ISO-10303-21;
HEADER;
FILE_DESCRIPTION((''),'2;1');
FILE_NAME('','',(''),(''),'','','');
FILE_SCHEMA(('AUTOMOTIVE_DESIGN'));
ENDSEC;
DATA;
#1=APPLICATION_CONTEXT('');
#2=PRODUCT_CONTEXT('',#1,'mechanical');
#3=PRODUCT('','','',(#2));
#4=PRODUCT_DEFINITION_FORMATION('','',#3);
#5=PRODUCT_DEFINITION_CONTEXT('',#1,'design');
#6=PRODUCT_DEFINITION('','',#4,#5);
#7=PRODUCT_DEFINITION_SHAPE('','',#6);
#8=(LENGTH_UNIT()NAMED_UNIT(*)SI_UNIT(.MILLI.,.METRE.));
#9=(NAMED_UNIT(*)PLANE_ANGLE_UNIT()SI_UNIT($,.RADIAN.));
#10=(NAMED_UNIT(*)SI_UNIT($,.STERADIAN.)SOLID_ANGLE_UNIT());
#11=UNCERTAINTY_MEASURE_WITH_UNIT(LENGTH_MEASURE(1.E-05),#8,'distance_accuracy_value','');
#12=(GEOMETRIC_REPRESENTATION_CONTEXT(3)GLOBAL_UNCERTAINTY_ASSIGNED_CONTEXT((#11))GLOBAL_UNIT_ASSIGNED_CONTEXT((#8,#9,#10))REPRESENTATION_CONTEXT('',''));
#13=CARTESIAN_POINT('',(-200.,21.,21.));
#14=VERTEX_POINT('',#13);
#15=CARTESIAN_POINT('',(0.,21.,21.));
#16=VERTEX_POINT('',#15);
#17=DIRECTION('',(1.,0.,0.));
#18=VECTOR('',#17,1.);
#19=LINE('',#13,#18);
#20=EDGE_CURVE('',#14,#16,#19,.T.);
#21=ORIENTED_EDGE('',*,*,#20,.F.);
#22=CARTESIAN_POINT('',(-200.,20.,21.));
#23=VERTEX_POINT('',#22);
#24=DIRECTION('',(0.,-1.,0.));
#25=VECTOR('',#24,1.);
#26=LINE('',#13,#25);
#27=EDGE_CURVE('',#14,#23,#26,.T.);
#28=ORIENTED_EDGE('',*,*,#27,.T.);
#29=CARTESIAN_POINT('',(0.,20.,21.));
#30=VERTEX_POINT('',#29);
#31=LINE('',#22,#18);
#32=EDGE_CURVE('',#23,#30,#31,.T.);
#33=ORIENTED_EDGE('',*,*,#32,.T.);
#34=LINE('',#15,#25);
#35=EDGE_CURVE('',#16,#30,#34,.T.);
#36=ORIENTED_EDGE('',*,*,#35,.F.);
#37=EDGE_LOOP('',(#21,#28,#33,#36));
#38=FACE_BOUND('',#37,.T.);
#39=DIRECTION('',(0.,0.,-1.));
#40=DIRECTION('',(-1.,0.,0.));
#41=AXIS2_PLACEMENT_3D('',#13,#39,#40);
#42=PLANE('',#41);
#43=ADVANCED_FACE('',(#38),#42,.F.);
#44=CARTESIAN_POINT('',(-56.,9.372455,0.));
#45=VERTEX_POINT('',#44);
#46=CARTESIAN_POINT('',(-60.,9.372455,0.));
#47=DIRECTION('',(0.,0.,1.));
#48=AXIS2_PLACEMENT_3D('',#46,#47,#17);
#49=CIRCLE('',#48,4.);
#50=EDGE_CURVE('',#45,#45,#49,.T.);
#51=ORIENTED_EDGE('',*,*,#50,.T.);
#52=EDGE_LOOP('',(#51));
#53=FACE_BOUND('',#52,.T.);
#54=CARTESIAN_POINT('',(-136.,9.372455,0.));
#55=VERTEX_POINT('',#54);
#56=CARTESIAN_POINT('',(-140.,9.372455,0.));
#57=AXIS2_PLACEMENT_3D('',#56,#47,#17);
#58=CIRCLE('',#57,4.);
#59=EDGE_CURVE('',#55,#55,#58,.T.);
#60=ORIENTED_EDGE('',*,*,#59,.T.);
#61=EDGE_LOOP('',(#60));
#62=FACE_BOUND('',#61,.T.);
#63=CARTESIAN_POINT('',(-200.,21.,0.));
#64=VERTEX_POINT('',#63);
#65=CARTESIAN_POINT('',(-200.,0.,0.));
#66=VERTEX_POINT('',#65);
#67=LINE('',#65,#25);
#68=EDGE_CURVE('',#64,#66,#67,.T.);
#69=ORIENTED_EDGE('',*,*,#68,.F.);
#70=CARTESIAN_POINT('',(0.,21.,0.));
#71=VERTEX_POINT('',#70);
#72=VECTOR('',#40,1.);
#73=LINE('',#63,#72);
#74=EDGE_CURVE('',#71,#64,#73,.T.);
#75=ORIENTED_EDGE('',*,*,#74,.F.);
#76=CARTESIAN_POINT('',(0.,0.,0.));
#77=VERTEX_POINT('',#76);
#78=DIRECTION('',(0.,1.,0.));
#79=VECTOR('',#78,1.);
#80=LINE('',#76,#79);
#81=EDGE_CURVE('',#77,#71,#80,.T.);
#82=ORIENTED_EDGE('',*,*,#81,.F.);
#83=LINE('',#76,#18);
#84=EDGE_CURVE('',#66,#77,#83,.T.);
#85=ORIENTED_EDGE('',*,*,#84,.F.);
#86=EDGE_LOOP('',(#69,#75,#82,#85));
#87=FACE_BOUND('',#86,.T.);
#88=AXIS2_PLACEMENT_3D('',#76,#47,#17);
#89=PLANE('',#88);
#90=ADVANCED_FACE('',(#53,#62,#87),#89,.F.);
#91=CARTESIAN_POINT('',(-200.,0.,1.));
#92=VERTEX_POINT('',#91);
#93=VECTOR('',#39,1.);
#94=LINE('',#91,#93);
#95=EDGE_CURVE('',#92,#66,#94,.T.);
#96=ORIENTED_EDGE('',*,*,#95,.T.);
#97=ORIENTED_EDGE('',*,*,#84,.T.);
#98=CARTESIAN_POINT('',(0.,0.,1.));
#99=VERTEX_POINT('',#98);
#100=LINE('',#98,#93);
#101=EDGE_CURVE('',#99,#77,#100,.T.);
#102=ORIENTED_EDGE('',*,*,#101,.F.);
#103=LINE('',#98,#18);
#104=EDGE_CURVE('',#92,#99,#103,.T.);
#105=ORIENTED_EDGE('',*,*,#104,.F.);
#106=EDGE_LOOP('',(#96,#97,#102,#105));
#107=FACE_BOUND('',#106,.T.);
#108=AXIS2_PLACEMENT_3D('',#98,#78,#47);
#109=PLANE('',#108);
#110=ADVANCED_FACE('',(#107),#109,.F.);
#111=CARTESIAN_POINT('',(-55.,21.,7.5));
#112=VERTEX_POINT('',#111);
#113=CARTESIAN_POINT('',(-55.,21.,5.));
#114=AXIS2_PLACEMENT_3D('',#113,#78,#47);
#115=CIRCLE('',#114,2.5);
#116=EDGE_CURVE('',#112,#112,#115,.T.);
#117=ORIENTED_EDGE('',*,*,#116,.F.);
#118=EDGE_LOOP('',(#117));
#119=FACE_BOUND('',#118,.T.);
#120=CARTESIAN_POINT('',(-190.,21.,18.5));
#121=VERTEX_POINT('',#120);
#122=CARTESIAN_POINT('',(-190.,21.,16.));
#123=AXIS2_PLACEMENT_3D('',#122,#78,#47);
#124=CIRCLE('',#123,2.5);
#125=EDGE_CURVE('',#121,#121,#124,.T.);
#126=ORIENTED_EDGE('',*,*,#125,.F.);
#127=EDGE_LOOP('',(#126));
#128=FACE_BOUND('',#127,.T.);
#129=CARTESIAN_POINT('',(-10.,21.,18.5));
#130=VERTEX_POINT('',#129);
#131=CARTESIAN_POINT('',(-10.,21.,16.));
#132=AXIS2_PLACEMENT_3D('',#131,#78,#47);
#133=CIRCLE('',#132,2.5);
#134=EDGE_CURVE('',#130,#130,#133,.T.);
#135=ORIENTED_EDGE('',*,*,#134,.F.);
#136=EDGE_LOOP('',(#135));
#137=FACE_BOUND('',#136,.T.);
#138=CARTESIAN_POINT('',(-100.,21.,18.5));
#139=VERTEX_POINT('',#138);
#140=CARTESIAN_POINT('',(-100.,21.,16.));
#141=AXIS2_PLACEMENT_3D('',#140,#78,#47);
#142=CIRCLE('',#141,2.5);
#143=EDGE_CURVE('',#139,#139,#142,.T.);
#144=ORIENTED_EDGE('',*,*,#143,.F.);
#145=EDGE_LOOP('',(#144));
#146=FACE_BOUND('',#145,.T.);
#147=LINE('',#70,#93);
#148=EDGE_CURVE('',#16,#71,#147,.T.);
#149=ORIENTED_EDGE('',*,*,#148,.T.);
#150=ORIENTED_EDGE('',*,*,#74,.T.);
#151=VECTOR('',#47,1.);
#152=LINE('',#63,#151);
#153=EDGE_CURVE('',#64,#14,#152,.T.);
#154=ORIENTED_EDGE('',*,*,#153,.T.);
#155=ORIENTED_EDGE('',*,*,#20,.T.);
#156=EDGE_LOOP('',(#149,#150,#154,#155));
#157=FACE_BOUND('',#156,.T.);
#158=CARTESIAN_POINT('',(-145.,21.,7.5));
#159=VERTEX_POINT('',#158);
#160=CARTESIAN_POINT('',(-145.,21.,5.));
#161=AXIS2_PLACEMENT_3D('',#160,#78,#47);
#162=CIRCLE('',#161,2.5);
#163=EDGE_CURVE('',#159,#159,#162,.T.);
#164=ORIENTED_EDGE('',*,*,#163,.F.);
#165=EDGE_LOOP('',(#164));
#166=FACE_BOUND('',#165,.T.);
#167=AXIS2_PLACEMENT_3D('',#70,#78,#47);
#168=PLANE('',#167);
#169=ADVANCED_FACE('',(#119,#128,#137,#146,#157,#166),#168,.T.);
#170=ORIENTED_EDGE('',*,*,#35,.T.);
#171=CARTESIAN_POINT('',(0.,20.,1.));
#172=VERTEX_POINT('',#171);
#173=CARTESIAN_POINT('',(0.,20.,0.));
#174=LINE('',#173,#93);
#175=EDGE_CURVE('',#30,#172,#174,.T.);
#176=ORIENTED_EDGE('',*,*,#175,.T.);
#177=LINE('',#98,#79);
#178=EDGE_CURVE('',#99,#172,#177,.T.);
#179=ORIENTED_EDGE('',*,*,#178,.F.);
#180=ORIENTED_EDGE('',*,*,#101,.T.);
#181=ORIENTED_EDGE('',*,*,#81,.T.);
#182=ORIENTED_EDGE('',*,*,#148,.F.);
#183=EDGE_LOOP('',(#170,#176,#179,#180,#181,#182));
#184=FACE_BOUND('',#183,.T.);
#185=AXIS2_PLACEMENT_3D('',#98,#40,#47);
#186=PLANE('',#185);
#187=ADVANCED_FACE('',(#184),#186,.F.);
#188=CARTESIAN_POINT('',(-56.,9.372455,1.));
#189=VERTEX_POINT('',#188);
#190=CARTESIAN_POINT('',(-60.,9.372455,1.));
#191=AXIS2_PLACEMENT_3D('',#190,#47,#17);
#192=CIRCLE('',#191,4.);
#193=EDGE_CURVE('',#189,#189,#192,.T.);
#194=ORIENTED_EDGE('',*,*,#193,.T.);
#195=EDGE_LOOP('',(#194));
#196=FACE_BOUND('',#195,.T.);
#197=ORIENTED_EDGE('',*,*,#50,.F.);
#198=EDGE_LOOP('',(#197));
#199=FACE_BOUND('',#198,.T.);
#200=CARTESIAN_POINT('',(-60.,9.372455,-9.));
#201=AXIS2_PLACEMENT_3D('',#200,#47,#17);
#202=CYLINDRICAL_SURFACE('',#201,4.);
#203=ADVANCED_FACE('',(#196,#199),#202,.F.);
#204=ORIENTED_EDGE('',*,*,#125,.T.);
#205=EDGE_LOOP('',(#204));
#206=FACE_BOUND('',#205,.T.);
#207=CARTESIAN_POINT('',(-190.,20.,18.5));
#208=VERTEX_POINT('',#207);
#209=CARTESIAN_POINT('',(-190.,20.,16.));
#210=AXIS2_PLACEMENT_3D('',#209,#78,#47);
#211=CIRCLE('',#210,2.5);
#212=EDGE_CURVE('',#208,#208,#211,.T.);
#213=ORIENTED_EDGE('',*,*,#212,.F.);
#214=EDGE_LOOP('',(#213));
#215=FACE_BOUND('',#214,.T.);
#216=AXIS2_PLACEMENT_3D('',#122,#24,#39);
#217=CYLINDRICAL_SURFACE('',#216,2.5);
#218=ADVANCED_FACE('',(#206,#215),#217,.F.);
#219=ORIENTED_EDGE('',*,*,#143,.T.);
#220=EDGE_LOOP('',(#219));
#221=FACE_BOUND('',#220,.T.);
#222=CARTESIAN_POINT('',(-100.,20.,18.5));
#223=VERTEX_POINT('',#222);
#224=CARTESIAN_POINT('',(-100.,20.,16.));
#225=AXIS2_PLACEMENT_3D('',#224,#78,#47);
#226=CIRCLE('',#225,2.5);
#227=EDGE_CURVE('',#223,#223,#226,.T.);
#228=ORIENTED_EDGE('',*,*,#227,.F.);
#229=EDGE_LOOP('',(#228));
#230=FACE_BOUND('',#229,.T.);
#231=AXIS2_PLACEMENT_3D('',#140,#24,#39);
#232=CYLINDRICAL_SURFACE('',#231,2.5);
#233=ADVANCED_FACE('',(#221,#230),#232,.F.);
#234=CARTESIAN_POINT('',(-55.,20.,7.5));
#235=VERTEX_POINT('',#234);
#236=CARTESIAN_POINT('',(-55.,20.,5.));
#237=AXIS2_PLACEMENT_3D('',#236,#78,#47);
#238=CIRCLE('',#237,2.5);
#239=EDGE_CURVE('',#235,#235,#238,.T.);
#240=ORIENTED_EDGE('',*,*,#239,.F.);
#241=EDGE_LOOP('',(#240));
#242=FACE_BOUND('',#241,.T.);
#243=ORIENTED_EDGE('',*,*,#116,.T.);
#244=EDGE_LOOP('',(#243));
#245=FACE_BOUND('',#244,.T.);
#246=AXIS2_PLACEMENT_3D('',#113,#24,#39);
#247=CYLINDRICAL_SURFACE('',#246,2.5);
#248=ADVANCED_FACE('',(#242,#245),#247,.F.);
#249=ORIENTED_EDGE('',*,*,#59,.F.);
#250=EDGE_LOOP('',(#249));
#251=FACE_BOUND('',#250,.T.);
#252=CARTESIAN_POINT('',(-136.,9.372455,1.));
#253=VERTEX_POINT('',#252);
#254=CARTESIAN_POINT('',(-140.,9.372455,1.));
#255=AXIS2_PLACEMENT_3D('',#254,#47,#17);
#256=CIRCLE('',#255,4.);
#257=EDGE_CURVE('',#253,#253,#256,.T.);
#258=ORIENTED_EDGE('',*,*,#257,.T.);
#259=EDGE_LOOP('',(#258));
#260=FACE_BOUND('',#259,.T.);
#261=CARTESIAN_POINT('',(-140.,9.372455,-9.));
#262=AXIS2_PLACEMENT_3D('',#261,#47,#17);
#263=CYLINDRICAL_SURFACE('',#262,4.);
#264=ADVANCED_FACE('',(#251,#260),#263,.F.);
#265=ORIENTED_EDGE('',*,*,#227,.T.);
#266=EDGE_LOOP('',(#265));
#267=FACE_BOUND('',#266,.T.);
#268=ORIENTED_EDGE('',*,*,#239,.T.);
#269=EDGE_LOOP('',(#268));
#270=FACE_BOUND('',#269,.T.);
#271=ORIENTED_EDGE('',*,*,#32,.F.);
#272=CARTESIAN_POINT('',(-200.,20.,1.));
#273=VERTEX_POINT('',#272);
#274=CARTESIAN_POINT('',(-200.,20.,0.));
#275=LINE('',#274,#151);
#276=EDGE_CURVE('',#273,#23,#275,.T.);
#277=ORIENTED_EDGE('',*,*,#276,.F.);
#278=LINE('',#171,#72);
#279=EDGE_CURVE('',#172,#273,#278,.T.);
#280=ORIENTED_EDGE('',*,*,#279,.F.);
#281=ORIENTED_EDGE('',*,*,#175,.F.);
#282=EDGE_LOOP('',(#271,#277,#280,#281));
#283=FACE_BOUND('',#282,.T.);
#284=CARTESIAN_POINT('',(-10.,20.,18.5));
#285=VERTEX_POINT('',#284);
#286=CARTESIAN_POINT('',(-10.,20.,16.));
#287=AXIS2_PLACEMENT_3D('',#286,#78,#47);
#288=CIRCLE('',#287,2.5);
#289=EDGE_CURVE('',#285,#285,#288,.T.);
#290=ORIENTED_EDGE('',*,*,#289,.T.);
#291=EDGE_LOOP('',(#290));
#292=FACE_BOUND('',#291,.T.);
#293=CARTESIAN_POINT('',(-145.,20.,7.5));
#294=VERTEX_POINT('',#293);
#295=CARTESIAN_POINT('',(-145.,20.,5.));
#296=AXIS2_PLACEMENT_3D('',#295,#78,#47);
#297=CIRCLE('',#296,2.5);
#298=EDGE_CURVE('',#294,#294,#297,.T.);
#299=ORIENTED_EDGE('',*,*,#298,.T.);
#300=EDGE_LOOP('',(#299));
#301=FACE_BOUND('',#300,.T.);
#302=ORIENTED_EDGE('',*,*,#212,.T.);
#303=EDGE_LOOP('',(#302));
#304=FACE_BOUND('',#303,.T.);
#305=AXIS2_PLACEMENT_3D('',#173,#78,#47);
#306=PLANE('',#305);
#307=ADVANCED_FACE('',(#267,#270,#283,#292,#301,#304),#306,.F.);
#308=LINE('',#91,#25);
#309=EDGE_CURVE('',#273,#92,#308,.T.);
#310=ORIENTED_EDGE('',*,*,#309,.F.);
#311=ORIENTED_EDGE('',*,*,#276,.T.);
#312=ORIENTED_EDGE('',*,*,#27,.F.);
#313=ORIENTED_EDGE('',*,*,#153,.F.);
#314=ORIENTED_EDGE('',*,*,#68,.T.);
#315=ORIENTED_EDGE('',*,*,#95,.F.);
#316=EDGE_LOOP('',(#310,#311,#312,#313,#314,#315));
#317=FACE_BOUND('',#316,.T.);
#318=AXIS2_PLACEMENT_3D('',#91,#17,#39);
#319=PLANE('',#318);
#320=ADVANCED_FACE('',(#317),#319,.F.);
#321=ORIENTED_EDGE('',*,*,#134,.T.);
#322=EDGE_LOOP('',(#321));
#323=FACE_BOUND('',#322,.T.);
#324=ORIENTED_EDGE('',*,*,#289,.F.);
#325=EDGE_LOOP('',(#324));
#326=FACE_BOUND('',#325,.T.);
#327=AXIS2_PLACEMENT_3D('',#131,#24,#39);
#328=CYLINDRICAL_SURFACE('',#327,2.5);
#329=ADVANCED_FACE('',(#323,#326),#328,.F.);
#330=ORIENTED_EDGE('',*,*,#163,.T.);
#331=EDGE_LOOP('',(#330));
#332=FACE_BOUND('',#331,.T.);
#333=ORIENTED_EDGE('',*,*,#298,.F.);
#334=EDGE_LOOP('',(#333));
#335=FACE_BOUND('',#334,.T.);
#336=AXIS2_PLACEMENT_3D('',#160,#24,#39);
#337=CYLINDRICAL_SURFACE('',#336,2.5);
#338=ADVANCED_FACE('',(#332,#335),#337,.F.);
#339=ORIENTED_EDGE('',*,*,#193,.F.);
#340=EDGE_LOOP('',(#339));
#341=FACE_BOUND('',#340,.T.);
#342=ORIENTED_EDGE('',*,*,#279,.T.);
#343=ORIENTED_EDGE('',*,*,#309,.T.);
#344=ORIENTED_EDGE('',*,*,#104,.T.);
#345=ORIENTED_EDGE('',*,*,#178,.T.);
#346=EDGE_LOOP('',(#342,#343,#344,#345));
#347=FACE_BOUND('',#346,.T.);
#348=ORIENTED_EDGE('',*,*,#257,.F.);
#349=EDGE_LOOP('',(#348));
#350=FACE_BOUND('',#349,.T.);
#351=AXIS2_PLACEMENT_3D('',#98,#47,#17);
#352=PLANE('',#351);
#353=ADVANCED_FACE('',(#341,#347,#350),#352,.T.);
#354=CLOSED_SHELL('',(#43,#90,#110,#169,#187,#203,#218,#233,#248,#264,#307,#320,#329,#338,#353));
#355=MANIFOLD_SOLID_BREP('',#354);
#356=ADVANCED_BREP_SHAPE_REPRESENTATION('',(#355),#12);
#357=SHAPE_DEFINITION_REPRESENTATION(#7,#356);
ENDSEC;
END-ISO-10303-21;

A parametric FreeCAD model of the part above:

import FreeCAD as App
import Part
import Sketcher


def add_polygon(sketch, points):
    """Adds a closed chain of lines whose ends are joined by coincident constraints."""
    first, n = sketch.GeometryCount, len(points)
    for a, b in zip(points, points[1:] + points[:1]):
        sketch.addGeometry(Part.LineSegment(App.Vector(*a, 0), App.Vector(*b, 0)), False)
    for i in range(n):
        sketch.addConstraint(Sketcher.Constraint("Coincident", first + i, 2, first + (i + 1) % n, 1))

doc = App.newDocument("Part")
body = doc.addObject("PartDesign::Body", "Body")

sketch1 = doc.addObject("Sketcher::SketchObject", "Sketch")
body.addObject(sketch1)
sketch1.AttachmentSupport = (doc.XY_Plane, [""])
sketch1.MapMode = "FlatFace"
add_polygon(sketch1, [(-200, 20), (-200, 0), (0, 0), (0, 20)])
sketch1.addConstraint([
    Sketcher.Constraint("Vertical", 0),
    Sketcher.Constraint("Horizontal", 1),
    Sketcher.Constraint("Vertical", 2),
    Sketcher.Constraint("Horizontal", 3),
    Sketcher.Constraint("Coincident", 1, 2, -1, 1),
    Sketcher.Constraint("DistanceX", 1, 1, 1, 2, 200.0),
    Sketcher.Constraint("DistanceY", 0, 2, 0, 1, 20.0),
])
pad1 = doc.addObject("PartDesign::Pad", "Pad")
body.addObject(pad1)
pad1.Profile = sketch1
pad1.Length = 1

sketch2 = doc.addObject("Sketcher::SketchObject", "Sketch001")
body.addObject(sketch2)
sketch2.AttachmentSupport = (doc.XZ_Plane, [""])
sketch2.MapMode = "FlatFace"
sketch2.AttachmentOffset = App.Placement(App.Vector(0, 0, -20), App.Rotation())
add_polygon(sketch2, [(-200, 0), (-200, 21), (0, 21), (0, 0)])
sketch2.addGeometry(Part.Circle(App.Vector(-190, 16, 0), App.Vector(0, 0, 1), 2.5), False)
sketch2.addGeometry(Part.Circle(App.Vector(-100, 16, 0), App.Vector(0, 0, 1), 2.5), False)
sketch2.addGeometry(Part.Circle(App.Vector(-10, 16, 0), App.Vector(0, 0, 1), 2.5), False)
sketch2.addGeometry(Part.Circle(App.Vector(-145, 5, 0), App.Vector(0, 0, 1), 2.5), False)
sketch2.addGeometry(Part.Circle(App.Vector(-55, 5, 0), App.Vector(0, 0, 1), 2.5), False)
sketch2.addConstraint([
    Sketcher.Constraint("Vertical", 0),
    Sketcher.Constraint("Horizontal", 1),
    Sketcher.Constraint("Vertical", 2),
    Sketcher.Constraint("Horizontal", 3),
    Sketcher.Constraint("Coincident", 2, 2, -1, 1),
    Sketcher.Constraint("Equal", 4, 5),
    Sketcher.Constraint("Equal", 5, 6),
    Sketcher.Constraint("Equal", 6, 7),
    Sketcher.Constraint("Equal", 7, 8),
    Sketcher.Constraint("Horizontal", 4, 3, 5, 3),
    Sketcher.Constraint("Horizontal", 5, 3, 6, 3),
    Sketcher.Constraint("Horizontal", 7, 3, 8, 3),
    Sketcher.Constraint("Diameter", 4, 5.0),
    Sketcher.Constraint("DistanceX", 1, 1, 1, 2, 200.0),
    Sketcher.Constraint("DistanceY", 0, 1, 0, 2, 21.0),
    Sketcher.Constraint("DistanceX", 4, 3, -1, 1, 190.0),
    Sketcher.Constraint("DistanceY", -1, 1, 4, 3, 16.0),
    Sketcher.Constraint("DistanceX", 5, 3, -1, 1, 100.0),
    Sketcher.Constraint("DistanceX", 6, 3, -1, 1, 10.0),
    Sketcher.Constraint("DistanceX", 7, 3, -1, 1, 145.0),
    Sketcher.Constraint("DistanceY", -1, 1, 7, 3, 5.0),
    Sketcher.Constraint("DistanceX", 8, 3, -1, 1, 55.0),
])
pad2 = doc.addObject("PartDesign::Pad", "Pad001")
body.addObject(pad2)
pad2.Profile = sketch2
pad2.Length = 1
pad2.Reversed = True

sketch3 = doc.addObject("Sketcher::SketchObject", "Sketch002")
body.addObject(sketch3)
sketch3.AttachmentSupport = (doc.XY_Plane, [""])
sketch3.MapMode = "FlatFace"
sketch3.AttachmentOffset = App.Placement(App.Vector(0, 0, 1), App.Rotation())
sketch3.addGeometry([
    Part.Circle(App.Vector(-140, 9.372455, 0), App.Vector(0, 0, 1), 4),
    Part.Circle(App.Vector(-60, 9.372455, 0), App.Vector(0, 0, 1), 4),
], False)
sketch3.addConstraint([
    Sketcher.Constraint("Equal", 0, 1),
    Sketcher.Constraint("Horizontal", 0, 3, 1, 3),
    Sketcher.Constraint("Diameter", 0, 8.0),
    Sketcher.Constraint("DistanceX", 0, 3, -1, 1, 140.0),
    Sketcher.Constraint("DistanceX", 1, 3, -1, 1, 60.0),
    Sketcher.Constraint("DistanceY", -1, 1, 0, 3, 9.372455),
])
pocket1 = doc.addObject("PartDesign::Pocket", "Pocket")
body.addObject(pocket1)
pocket1.Profile = sketch3
pocket1.Length = 10

doc.recompute()
